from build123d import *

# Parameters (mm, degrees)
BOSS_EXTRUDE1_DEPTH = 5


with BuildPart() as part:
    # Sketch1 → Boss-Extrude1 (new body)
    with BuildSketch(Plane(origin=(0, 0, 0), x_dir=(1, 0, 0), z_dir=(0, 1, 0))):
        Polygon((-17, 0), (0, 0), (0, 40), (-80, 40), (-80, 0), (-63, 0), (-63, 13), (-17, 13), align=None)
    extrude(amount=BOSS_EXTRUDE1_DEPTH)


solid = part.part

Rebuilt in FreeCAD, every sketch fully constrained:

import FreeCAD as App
import Part
import Sketcher
from FreeCAD import Vector


def add_polygon(sketch, points):
    """Adds a closed chain of lines whose ends are joined by coincident constraints."""
    first, n = sketch.GeometryCount, len(points)
    for a, b in zip(points, points[1:] + points[:1]):
        sketch.addGeometry(Part.LineSegment(App.Vector(*a, 0), App.Vector(*b, 0)), False)
    for i in range(n):
        sketch.addConstraint(Sketcher.Constraint("Coincident", first + i, 2, first + (i + 1) % n, 1))

doc = App.newDocument("Part")
body = doc.addObject("PartDesign::Body", "Body")

sketch1 = body.newObject("Sketcher::SketchObject", "Sketch")
sketch1.AttachmentSupport = (doc.getObject("XZ_Plane"), [""])
sketch1.MapMode = "FlatFace"
add_polygon(sketch1, [(-17, 0), (0, 0), (0, -40), (-80, -40), (-80, 0), (-63, 0), (-63, -13), (-17, -13)])
sketch1.addConstraint([
    Sketcher.Constraint("Horizontal", 0),
    Sketcher.Constraint("Vertical", 1),
    Sketcher.Constraint("Horizontal", 2),
    Sketcher.Constraint("Vertical", 3),
    Sketcher.Constraint("Horizontal", 4),
    Sketcher.Constraint("Vertical", 5),
    Sketcher.Constraint("Horizontal", 6),
    Sketcher.Constraint("Vertical", 7),
    Sketcher.Constraint("Coincident", 0, 2, -1, 1),
    Sketcher.Constraint("PointOnObject", 3, 2, -1),
    Sketcher.Constraint("Equal", 0, 4),
    Sketcher.Constraint("DistanceX", 0, 1, 0, 2, 17.0),
    Sketcher.Constraint("DistanceX", 2, 2, 2, 1, 80.0),
    Sketcher.Constraint("DistanceY", 1, 2, 1, 1, 40.0),
    Sketcher.Constraint("DistanceY", 5, 2, 5, 1, 13.0),
])
pad1 = body.newObject("PartDesign::Pad", "Pad")
pad1.Profile = sketch1
pad1.Length = 5
pad1.Reversed = True

doc.recompute()
